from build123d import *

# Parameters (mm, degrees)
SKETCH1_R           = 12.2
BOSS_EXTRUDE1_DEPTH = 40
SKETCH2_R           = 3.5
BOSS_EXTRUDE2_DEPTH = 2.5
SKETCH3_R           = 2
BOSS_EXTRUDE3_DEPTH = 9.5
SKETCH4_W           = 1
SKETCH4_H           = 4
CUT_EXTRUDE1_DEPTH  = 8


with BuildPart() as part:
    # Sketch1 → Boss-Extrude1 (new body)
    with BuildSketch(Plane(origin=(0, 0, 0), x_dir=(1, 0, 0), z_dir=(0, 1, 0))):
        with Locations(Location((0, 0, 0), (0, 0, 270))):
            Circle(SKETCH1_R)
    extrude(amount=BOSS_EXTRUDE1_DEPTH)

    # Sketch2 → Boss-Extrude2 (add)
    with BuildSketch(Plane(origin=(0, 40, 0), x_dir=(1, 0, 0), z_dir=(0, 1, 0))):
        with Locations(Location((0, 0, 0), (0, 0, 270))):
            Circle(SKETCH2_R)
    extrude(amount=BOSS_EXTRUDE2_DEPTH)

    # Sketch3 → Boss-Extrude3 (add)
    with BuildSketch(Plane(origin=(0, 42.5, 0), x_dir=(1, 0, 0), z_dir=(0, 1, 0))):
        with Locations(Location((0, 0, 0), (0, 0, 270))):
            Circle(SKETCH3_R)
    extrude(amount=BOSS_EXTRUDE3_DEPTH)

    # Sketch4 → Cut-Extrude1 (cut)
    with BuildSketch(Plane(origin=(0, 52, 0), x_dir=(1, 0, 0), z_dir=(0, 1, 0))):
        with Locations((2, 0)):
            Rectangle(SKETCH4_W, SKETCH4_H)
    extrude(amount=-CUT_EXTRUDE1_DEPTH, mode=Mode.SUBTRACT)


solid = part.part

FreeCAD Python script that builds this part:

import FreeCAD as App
import Part
import Sketcher
from FreeCAD import Vector
Q = App.Units.Quantity


def add_polygon(sketch, points):
    """Adds a closed chain of lines whose ends are joined by coincident constraints."""
    first, n = sketch.GeometryCount, len(points)
    for a, b in zip(points, points[1:] + points[:1]):
        sketch.addGeometry(Part.LineSegment(App.Vector(*a, 0), App.Vector(*b, 0)), False)
    for i in range(n):
        sketch.addConstraint(Sketcher.Constraint("Coincident", first + i, 2, first + (i + 1) % n, 1))

doc = App.newDocument("Part")
body = doc.addObject("PartDesign::Body", "Body")

# Sketch on XZ plane
sketch1 = doc.addObject("Sketcher::SketchObject", "Sketch")
body.addObject(sketch1)
sketch1.AttachmentSupport = (doc.XZ_Plane, [""])
sketch1.MapMode = "FlatFace"
sketch1.addGeometry(Part.Circle(Vector(0, 0, 0), Vector(0, 0, 1), 12), False)
sketch1.addConstraint(Sketcher.Constraint("Coincident", 0, 3, -1, 1))
sketch1.addConstraint(Sketcher.Constraint("Diameter", 0, Q("24.4 mm")))
pad1 = doc.addObject("PartDesign::Pad", "Pad")
body.addObject(pad1)
pad1.Profile = sketch1
pad1.Length = 40
pad1.Reversed = True

# Sketch on XZ plane
sketch2 = doc.addObject("Sketcher::SketchObject", "Sketch001")
body.addObject(sketch2)
sketch2.AttachmentSupport = (doc.XZ_Plane, [""])
sketch2.MapMode = "FlatFace"
sketch2.AttachmentOffset = App.Placement(Vector(0, 0, -40), App.Rotation())
sketch2.addGeometry(Part.Circle(Vector(0, 0, 0), Vector(0, 0, 1), 3.5), False)
sketch2.addConstraint(Sketcher.Constraint("Coincident", 0, 3, -1, 1))
sketch2.addConstraint(Sketcher.Constraint("Diameter", 0, Q("7 mm")))
pad2 = doc.addObject("PartDesign::Pad", "Pad001")
body.addObject(pad2)
pad2.Profile = sketch2
pad2.Length = 2.5
pad2.Reversed = True

# Sketch on XZ plane
sketch3 = doc.addObject("Sketcher::SketchObject", "Sketch002")
body.addObject(sketch3)
sketch3.AttachmentSupport = (doc.XZ_Plane, [""])
sketch3.MapMode = "FlatFace"
sketch3.AttachmentOffset = App.Placement(Vector(0, 0, -42.5), App.Rotation())
sketch3.addGeometry(Part.Circle(Vector(0, 0, 0), Vector(0, 0, 1), 2), False)
sketch3.addConstraint(Sketcher.Constraint("Coincident", 0, 3, -1, 1))
sketch3.addConstraint(Sketcher.Constraint("Diameter", 0, Q("4 mm")))
pad3 = doc.addObject("PartDesign::Pad", "Pad002")
body.addObject(pad3)
pad3.Profile = sketch3
pad3.Length = 9.5
pad3.Reversed = True

# Sketch on XZ plane
sketch4 = doc.addObject("Sketcher::SketchObject", "Sketch003")
body.addObject(sketch4)
sketch4.AttachmentSupport = (doc.XZ_Plane, [""])
sketch4.MapMode = "FlatFace"
sketch4.AttachmentOffset = App.Placement(Vector(0, 0, -52), App.Rotation())
add_polygon(sketch4, [(1.5, -2), (1.5, 2), (2.5, 2), (2.5, -2)])  # lines 0-3
sketch4.addConstraint(Sketcher.Constraint("Vertical", 0))
sketch4.addConstraint(Sketcher.Constraint("Horizontal", 1))
sketch4.addConstraint(Sketcher.Constraint("Vertical", 2))
sketch4.addConstraint(Sketcher.Constraint("Horizontal", 3))
sketch4.addConstraint(Sketcher.Constraint("DistanceX", 1, 1, 1, 2, Q("1 mm")))
sketch4.addConstraint(Sketcher.Constraint("DistanceY", 0, 1, 0, 2, Q("4 mm")))
sketch4.addConstraint(Sketcher.Constraint("DistanceY", -1, 1, 0, 2, Q("2 mm")))
sketch4.addConstraint(Sketcher.Constraint("DistanceX", -1, 1, 0, 2, Q("1.5 mm")))
pocket1 = doc.addObject("PartDesign::Pocket", "Pocket")
body.addObject(pocket1)
pocket1.Profile = sketch4
pocket1.Length = 8
pocket1.Reversed = True

doc.recompute()
